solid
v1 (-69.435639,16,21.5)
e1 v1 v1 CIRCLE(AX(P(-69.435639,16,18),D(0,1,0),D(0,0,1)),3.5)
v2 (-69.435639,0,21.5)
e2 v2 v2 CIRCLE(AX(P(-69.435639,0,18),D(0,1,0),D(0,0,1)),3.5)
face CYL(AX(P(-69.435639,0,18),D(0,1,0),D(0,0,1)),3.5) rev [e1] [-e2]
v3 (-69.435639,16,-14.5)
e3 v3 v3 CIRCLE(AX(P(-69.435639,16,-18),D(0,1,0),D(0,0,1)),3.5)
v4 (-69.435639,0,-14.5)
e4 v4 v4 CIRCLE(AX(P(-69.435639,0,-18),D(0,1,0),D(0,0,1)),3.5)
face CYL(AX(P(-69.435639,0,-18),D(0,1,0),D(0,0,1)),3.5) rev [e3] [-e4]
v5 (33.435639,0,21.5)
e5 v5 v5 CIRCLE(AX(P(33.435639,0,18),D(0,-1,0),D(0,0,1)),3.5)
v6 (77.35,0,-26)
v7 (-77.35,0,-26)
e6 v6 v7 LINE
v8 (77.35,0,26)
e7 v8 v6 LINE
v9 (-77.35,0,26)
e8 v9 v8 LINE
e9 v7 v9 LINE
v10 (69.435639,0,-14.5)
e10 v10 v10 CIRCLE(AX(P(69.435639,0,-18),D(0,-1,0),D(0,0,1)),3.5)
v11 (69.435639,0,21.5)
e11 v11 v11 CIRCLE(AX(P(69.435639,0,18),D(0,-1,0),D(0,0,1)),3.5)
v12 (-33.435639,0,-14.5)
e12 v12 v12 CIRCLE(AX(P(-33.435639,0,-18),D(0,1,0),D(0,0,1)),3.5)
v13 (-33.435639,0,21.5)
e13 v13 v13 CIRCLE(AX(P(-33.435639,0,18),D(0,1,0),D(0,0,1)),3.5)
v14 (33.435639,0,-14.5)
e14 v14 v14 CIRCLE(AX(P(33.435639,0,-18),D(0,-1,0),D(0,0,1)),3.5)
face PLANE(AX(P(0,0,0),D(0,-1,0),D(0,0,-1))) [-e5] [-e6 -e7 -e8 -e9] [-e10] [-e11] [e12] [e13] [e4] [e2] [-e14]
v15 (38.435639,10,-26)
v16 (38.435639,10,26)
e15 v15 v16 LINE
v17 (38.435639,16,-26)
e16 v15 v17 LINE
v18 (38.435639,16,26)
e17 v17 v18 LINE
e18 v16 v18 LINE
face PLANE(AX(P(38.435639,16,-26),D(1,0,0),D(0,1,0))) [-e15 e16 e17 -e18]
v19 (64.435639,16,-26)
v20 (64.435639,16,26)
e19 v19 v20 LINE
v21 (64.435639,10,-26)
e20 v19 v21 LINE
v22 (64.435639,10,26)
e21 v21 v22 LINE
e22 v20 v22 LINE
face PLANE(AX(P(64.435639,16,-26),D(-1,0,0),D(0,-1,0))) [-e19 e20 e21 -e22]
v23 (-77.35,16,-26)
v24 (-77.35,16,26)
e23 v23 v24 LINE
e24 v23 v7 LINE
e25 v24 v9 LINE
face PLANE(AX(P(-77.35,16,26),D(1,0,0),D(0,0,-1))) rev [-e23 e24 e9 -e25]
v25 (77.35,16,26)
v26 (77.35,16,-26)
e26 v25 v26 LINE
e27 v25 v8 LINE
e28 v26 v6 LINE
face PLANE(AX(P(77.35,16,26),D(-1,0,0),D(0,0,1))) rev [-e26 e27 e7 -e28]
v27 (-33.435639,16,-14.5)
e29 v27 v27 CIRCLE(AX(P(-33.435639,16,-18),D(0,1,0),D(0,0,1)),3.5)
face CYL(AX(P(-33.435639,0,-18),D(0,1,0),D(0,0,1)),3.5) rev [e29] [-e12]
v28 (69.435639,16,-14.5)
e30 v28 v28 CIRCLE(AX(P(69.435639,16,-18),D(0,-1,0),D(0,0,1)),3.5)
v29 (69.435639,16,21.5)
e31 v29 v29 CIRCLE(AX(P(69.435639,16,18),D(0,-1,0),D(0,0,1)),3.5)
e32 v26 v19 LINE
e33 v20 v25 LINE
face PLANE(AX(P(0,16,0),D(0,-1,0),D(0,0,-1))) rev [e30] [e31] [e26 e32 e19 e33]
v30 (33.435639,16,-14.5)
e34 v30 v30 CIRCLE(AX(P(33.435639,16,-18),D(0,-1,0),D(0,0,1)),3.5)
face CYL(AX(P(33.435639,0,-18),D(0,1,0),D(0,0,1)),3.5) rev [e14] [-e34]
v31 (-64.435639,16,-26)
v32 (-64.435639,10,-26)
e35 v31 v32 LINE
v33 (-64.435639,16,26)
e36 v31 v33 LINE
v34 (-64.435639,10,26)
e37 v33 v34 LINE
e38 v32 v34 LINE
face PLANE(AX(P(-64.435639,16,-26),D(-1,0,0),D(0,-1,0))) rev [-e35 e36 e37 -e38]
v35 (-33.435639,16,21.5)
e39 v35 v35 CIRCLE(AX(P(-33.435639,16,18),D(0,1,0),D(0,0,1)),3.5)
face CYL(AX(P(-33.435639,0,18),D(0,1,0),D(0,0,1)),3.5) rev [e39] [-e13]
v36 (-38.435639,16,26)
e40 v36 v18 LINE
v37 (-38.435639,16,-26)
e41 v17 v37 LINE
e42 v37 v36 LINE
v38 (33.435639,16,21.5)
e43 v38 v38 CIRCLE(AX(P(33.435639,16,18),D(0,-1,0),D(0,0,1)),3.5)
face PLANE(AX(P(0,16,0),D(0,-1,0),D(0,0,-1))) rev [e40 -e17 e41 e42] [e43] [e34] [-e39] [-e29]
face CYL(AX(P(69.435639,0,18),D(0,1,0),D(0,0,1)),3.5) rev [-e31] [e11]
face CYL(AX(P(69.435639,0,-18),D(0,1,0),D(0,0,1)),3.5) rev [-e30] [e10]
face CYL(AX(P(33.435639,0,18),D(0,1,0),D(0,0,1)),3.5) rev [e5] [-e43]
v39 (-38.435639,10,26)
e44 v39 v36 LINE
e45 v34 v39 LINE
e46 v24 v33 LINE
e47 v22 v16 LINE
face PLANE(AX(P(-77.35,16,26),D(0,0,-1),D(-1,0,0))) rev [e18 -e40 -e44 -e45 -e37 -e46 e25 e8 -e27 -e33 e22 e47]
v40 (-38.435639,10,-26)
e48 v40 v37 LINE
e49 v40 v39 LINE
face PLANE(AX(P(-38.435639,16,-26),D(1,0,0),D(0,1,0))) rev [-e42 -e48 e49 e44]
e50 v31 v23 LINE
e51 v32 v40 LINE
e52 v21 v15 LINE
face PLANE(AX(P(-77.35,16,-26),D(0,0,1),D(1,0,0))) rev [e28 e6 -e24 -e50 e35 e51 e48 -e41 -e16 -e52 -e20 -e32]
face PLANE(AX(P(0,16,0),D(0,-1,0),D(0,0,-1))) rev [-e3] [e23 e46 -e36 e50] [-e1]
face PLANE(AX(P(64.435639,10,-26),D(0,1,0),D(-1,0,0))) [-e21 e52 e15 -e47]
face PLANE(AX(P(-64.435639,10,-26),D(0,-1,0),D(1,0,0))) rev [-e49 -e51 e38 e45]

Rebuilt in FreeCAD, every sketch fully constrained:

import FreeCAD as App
import Part
import Sketcher

V = App.Vector
Q = App.Units.Quantity


def add_polygon(sketch, points):
    """Adds a closed chain of lines whose ends are joined by coincident constraints."""
    first, n = sketch.GeometryCount, len(points)
    for a, b in zip(points, points[1:] + points[:1]):
        sketch.addGeometry(Part.LineSegment(App.Vector(*a, 0), App.Vector(*b, 0)), False)
    for i in range(n):
        sketch.addConstraint(Sketcher.Constraint("Coincident", first + i, 2, first + (i + 1) % n, 1))

doc = App.newDocument("Part")
params = doc.addObject("Spreadsheet::Sheet", "Params")
for row, (alias, value) in enumerate([
    ("sketch1_height", "52 mm"),
    ("sketch1_width", "154.7 mm"),
    ("pad1_length", "16 mm"),
    ("sketch2_diameter", "7 mm"),
    ("sketch3_width", "26 mm"),
    ("sketch3_height", "6 mm"),
], start=1):
    params.set(f"A{row}", alias)
    params.set(f"B{row}", "=" + value)
    params.setAlias(f"B{row}", alias)

body = doc.addObject("PartDesign::Body", "Body")

# Sketch on XZ plane
sketch1 = doc.addObject("Sketcher::SketchObject", "Sketch")
body.addObject(sketch1)
sketch1.AttachmentSupport = (doc.XZ_Plane, [""])
sketch1.MapMode = "FlatFace"
add_polygon(sketch1, [(-77, -26), (-77, 26), (77, 26), (77, -26)])  # lines 0-3
sketch1.addConstraint([
    Sketcher.Constraint("Vertical", 0),
    Sketcher.Constraint("Horizontal", 1),
    Sketcher.Constraint("Vertical", 2),
    Sketcher.Constraint("Horizontal", 3),
    Sketcher.Constraint("Symmetric", 0, 2, 2, 2, -1, 1),
    Sketcher.Constraint("DistanceY", 0, 1, 0, 2, Q("52 mm")),
    Sketcher.Constraint("DistanceX", 1, 1, 1, 2, Q("154.7 mm")),
])
sketch1.setExpression("Constraints[9]", "Params.sketch1_height")
sketch1.setExpression("Constraints[10]", "Params.sketch1_width")
pad1 = doc.addObject("PartDesign::Pad", "Pad")
body.addObject(pad1)
pad1.Profile = sketch1
pad1.setExpression("Length", "Params.pad1_length")
pad1.Reversed = True

# Sketch on XZ plane
sketch2 = doc.addObject("Sketcher::SketchObject", "Sketch001")
body.addObject(sketch2)
sketch2.AttachmentSupport = (doc.XZ_Plane, [""])
sketch2.MapMode = "FlatFace"
sketch2.AttachmentOffset = App.Placement(V(0, 0, -16), App.Rotation())
sketch2.addGeometry([
    Part.Circle(V(-69.4, -18, 0), V(0, 0, 1), 3.5),
    Part.Circle(V(-33.4, -18, 0), V(0, 0, 1), 3.5),
    Part.Circle(V(-33.4, 18, 0), V(0, 0, 1), 3.5),
    Part.Circle(V(-69.4, 18, 0), V(0, 0, 1), 3.5),
], False)
sketch2.addConstraint([
    Sketcher.Constraint("Equal", 0, 1),
    Sketcher.Constraint("Equal", 1, 2),
    Sketcher.Constraint("Equal", 2, 3),
    Sketcher.Constraint("Symmetric", 1, 3, 2, 3, -1),
    Sketcher.Constraint("Symmetric", 0, 3, 3, 3, -1),
    Sketcher.Constraint("Horizontal", 0, 3, 1, 3),
    Sketcher.Constraint("Diameter", 0, Q("7 mm")),
    Sketcher.Constraint("DistanceY", 0, 3, -1, 1, Q("18 mm")),
    Sketcher.Constraint("DistanceX", 0, 3, 1, 3, Q("36 mm")),
    Sketcher.Constraint("DistanceX", 0, 3, -1, 1, Q("69.435639 mm")),
])
sketch2.setExpression("Constraints[6]", "Params.sketch2_diameter")
pocket1 = doc.addObject("PartDesign::Pocket", "Pocket")
body.addObject(pocket1)
pocket1.Profile = sketch2
pocket1.Type = "ThroughAll"
pocket1.Reversed = True
doc.recompute()

mirrored = doc.addObject("PartDesign::Mirrored", "Mirrored")
body.addObject(mirrored)
mirrored.Originals = [pocket1]
mirrored.MirrorPlane = (doc.YZ_Plane, [""])
body.Tip = mirrored

# Sketch on XY plane
sketch3 = doc.addObject("Sketcher::SketchObject", "Sketch002")
body.addObject(sketch3)
sketch3.AttachmentSupport = (doc.XY_Plane, [""])
sketch3.MapMode = "FlatFace"
sketch3.AttachmentOffset = App.Placement(V(0, 0, 26), App.Rotation())
add_polygon(sketch3, [(-64, 16), (-64, 10), (-38, 10), (-38, 16)])  # lines 0-3
sketch3.addConstraint([
    Sketcher.Constraint("Vertical", 0),
    Sketcher.Constraint("Horizontal", 1),
    Sketcher.Constraint("Vertical", 2),
    Sketcher.Constraint("Horizontal", 3),
    Sketcher.Constraint("DistanceX", 1, 1, 1, 2, Q("26 mm")),
    Sketcher.Constraint("DistanceY", 0, 2, 0, 1, Q("6 mm")),
    Sketcher.Constraint("DistanceY", -1, 1, 0, 2, Q("10 mm")),
    Sketcher.Constraint("DistanceX", 0, 2, -1, 1, Q("64.435639 mm")),
])
sketch3.setExpression("Constraints[8]", "Params.sketch3_width")
sketch3.setExpression("Constraints[9]", "Params.sketch3_height")
pocket2 = doc.addObject("PartDesign::Pocket", "Pocket001")
body.addObject(pocket2)
pocket2.Profile = sketch3
pocket2.Type = "ThroughAll"
doc.recompute()

mirrored2 = doc.addObject("PartDesign::Mirrored", "Mirrored001")
body.addObject(mirrored2)
mirrored2.Originals = [pocket2]
mirrored2.MirrorPlane = (doc.YZ_Plane, [""])
body.Tip = mirrored2

doc.recompute()
